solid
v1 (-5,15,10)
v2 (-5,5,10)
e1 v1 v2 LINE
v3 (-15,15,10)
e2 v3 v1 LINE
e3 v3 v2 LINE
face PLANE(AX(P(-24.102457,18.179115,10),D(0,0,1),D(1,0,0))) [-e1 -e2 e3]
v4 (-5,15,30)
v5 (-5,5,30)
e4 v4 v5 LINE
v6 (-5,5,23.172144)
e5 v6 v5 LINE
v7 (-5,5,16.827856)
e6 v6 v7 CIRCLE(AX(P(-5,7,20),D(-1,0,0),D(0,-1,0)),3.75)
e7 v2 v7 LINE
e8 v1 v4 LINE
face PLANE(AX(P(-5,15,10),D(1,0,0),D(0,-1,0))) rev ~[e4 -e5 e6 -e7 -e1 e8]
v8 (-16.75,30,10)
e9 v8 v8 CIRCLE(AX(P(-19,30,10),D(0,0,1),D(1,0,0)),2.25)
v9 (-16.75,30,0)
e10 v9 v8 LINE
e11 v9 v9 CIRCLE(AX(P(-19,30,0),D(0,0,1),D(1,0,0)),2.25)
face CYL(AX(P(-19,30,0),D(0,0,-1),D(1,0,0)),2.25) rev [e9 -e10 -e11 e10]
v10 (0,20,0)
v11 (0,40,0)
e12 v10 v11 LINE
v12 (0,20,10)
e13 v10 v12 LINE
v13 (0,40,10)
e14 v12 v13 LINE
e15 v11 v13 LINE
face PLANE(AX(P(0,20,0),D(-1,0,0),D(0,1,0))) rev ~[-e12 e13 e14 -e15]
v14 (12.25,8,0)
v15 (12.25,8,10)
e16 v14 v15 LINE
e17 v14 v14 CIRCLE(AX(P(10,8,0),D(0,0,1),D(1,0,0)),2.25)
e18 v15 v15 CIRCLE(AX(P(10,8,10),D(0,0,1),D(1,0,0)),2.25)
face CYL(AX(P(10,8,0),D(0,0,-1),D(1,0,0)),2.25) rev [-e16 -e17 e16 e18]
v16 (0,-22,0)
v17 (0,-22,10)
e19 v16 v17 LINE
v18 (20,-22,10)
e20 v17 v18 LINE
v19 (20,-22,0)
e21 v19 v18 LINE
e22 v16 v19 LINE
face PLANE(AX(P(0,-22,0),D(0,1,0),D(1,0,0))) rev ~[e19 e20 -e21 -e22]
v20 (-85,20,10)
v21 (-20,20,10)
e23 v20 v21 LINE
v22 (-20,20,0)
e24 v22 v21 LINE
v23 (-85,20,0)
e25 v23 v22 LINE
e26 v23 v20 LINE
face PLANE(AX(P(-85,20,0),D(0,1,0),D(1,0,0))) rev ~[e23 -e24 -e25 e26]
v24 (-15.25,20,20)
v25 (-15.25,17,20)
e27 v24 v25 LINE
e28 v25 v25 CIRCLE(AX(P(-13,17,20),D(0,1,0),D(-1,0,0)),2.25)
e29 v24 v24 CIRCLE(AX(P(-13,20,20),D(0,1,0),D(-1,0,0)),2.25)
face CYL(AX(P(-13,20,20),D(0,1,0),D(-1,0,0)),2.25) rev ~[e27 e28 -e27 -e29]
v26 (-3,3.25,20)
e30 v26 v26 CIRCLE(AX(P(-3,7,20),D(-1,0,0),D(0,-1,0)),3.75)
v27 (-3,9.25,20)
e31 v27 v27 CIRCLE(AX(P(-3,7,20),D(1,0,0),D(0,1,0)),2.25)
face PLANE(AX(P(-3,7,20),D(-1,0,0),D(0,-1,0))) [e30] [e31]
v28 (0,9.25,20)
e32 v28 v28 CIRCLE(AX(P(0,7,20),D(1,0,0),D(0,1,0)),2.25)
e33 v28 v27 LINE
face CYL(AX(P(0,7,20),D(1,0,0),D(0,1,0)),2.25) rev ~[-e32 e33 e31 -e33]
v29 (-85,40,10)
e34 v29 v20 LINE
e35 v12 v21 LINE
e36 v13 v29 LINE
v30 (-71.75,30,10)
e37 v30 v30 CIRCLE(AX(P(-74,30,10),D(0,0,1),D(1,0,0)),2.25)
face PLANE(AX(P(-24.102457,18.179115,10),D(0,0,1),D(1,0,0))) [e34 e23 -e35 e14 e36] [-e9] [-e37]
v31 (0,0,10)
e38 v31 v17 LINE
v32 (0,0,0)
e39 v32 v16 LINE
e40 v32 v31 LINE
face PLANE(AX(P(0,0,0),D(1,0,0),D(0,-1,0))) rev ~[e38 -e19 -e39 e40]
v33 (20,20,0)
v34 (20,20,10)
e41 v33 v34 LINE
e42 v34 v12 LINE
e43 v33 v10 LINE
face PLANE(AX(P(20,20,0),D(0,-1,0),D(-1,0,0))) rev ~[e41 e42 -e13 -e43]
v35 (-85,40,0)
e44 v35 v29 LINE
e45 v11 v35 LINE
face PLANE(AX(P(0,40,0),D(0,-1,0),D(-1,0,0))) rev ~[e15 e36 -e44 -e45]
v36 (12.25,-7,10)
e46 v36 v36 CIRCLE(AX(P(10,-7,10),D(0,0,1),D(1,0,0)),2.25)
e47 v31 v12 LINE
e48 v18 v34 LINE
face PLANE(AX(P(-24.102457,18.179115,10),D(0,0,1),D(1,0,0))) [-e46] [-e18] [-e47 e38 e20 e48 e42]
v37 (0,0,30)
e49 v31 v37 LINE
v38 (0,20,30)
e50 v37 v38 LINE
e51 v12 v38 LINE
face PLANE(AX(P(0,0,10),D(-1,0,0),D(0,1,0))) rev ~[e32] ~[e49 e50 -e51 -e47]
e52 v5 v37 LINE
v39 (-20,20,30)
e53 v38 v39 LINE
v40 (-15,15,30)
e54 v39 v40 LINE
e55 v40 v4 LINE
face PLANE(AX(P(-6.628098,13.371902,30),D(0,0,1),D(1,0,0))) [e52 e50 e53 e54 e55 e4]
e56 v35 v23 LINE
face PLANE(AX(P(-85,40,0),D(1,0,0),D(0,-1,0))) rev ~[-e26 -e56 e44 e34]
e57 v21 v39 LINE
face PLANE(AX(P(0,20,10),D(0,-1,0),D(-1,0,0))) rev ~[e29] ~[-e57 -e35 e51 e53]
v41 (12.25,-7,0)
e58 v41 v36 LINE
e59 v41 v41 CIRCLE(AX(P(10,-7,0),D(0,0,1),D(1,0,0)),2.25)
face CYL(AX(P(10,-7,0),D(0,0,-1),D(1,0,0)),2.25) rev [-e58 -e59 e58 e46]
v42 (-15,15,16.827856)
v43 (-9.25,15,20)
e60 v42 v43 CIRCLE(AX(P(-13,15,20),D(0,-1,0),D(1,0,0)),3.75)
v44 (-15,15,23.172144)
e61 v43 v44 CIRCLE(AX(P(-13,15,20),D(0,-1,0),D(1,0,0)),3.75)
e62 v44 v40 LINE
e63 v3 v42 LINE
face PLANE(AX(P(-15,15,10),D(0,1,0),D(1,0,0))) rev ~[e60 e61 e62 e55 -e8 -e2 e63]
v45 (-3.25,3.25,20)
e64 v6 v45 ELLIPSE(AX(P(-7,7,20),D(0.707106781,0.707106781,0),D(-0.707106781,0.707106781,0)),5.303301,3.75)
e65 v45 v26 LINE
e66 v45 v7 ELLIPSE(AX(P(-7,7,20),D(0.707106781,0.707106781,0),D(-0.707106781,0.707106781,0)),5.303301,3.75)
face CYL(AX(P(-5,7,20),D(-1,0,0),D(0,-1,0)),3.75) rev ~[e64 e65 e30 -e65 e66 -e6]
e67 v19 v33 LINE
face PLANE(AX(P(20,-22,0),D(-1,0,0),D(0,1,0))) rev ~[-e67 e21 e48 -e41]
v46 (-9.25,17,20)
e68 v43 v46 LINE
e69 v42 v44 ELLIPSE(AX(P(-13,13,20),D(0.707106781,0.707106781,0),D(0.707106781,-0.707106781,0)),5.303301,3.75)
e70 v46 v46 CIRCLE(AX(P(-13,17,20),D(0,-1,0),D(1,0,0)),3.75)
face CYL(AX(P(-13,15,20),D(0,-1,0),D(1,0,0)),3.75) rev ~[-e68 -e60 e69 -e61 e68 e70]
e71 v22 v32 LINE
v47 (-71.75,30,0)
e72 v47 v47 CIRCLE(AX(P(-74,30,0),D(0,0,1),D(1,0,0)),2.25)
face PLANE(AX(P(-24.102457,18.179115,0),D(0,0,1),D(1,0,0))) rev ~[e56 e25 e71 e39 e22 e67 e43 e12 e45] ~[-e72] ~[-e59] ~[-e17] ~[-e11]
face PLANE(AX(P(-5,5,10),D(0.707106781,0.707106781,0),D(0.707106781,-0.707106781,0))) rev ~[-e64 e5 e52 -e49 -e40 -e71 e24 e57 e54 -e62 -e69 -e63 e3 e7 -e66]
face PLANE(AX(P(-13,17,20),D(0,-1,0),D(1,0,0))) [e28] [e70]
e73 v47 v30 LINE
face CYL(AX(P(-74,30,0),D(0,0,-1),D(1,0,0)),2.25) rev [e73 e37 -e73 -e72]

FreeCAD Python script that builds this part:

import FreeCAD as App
import Part
import Sketcher


def add_polygon(sketch, points):
    """Adds a closed chain of lines whose ends are joined by coincident constraints."""
    first, n = sketch.GeometryCount, len(points)
    for a, b in zip(points, points[1:] + points[:1]):
        sketch.addGeometry(Part.LineSegment(App.Vector(*a, 0), App.Vector(*b, 0)), False)
    for i in range(n):
        sketch.addConstraint(Sketcher.Constraint("Coincident", first + i, 2, first + (i + 1) % n, 1))

doc = App.newDocument("Part")
body = doc.addObject("PartDesign::Body", "Body")

# Sketch on XY plane
sketch1 = body.newObject("Sketcher::SketchObject", "Sketch")
sketch1.AttachmentSupport = (doc.getObject("XY_Plane"), [""])
sketch1.MapMode = "FlatFace"
add_polygon(sketch1, [(-20, 20), (0, 0), (0, -22), (20, -22), (20, 20), (0, 20), (0, 40), (-85, 40), (-85, 20)])  # lines 0-8
sketch1.addGeometry(Part.Circle(App.Vector(10, -7, 0), App.Vector(0, 0, 1), 2.2), False)  # 9
sketch1.addGeometry(Part.Circle(App.Vector(10, 8, 0), App.Vector(0, 0, 1), 2.2), False)  # 10
sketch1.addGeometry(Part.Circle(App.Vector(-74, 30, 0), App.Vector(0, 0, 1), 2.2), False)  # 11
sketch1.addGeometry(Part.Circle(App.Vector(-19, 30, 0), App.Vector(0, 0, 1), 2.2), False)  # 12
sketch1.addConstraint([
    Sketcher.Constraint("Vertical", 1),
    Sketcher.Constraint("Horizontal", 2),
    Sketcher.Constraint("Vertical", 3),
    Sketcher.Constraint("Horizontal", 4),
    Sketcher.Constraint("Vertical", 5),
    Sketcher.Constraint("Horizontal", 6),
    Sketcher.Constraint("Vertical", 7),
    Sketcher.Constraint("Horizontal", 8),
    Sketcher.Constraint("Coincident", 0, 2, -1, 1),
    Sketcher.Constraint("Equal", 9, 10),
    Sketcher.Constraint("Equal", 10, 11),
    Sketcher.Constraint("Equal", 11, 12),
    Sketcher.Constraint("Symmetric", 3, 2, 8, 2, -2),
    Sketcher.Constraint("PointOnObject", 4, 2, -2),
    Sketcher.Constraint("Horizontal", 11, 3, 12, 3),
    Sketcher.Constraint("Vertical", 9, 3, 10, 3),
    Sketcher.Constraint("Equal", 4, 5),
    Sketcher.Constraint("Diameter", 9, 4.5),
    Sketcher.Constraint("DistanceX", 2, 1, 2, 2, 20.0),
    Sketcher.Constraint("DistanceX", 6, 2, 6, 1, 85.0),
    Sketcher.Constraint("DistanceY", 1, 2, 1, 1, 22.0),
    Sketcher.Constraint("DistanceY", 3, 1, 3, 2, 42.0),
    Sketcher.Constraint("DistanceX", -1, 1, 9, 3, 10.0),
    Sketcher.Constraint("DistanceY", 9, 3, -1, 1, 7.0),
    Sketcher.Constraint("DistanceY", -1, 1, 10, 3, 8.0),
    Sketcher.Constraint("DistanceX", 11, 3, -1, 1, 74.0),
    Sketcher.Constraint("DistanceY", -1, 1, 11, 3, 30.0),
    Sketcher.Constraint("DistanceX", 12, 3, -1, 1, 19.0),
])
pad1 = body.newObject("PartDesign::Pad", "Pad")
pad1.Profile = sketch1
pad1.Length = 10

# Sketch on XY plane
sketch2 = body.newObject("Sketcher::SketchObject", "Sketch001")
sketch2.AttachmentSupport = (doc.getObject("XY_Plane"), [""])
sketch2.MapMode = "FlatFace"
sketch2.AttachmentOffset = App.Placement(App.Vector(0, 0, 10), App.Rotation())
add_polygon(sketch2, [(0, 0), (0, 20), (-20, 20), (-15, 15), (-5, 15), (-5, 5)])  # lines 0-5
sketch2.addConstraint([
    Sketcher.Constraint("Vertical", 0),
    Sketcher.Constraint("Horizontal", 1),
    Sketcher.Constraint("Horizontal", 3),
    Sketcher.Constraint("Vertical", 4),
    Sketcher.Constraint("Coincident", 5, 2, -1, 1),
    Sketcher.Constraint("Parallel", 2, 5),
    Sketcher.Constraint("Equal", 1, 0),
    Sketcher.Constraint("Equal", 3, 4),
    Sketcher.Constraint("Equal", 2, 5),
    Sketcher.Constraint("DistanceX", 1, 2, 1, 1, 20.0),
    Sketcher.Constraint("DistanceX", 3, 1, 3, 2, 10.0),
])
pad2 = body.newObject("PartDesign::Pad", "Pad001")
pad2.Profile = sketch2
pad2.Length = 20

# Sketch on YZ plane
sketch3 = body.newObject("Sketcher::SketchObject", "Sketch002")
sketch3.AttachmentSupport = (doc.getObject("YZ_Plane"), [""])
sketch3.MapMode = "FlatFace"
sketch3.addGeometry(Part.Circle(App.Vector(7, 20, 0), App.Vector(0, 0, 1), 2.2), False)
sketch3.addConstraint([
    Sketcher.Constraint("Diameter", 0, 4.5),
    Sketcher.Constraint("DistanceX", -1, 1, 0, 3, 7.0),
    Sketcher.Constraint("DistanceY", -1, 1, 0, 3, 20.0),
])
pocket1 = body.newObject("PartDesign::Pocket", "Pocket")
pocket1.Profile = sketch3
pocket1.Length = 5

# Sketch on XZ plane
sketch4 = body.newObject("Sketcher::SketchObject", "Sketch003")
sketch4.AttachmentSupport = (doc.getObject("XZ_Plane"), [""])
sketch4.MapMode = "FlatFace"
sketch4.AttachmentOffset = App.Placement(App.Vector(0, 0, -20), App.Rotation())
sketch4.addGeometry(Part.Circle(App.Vector(-13, 20, 0), App.Vector(0, 0, 1), 2.2), False)
sketch4.addConstraint([
    Sketcher.Constraint("Diameter", 0, 4.5),
    Sketcher.Constraint("DistanceX", 0, 3, -1, 1, 13.0),
    Sketcher.Constraint("DistanceY", -1, 1, 0, 3, 20.0),
])
pocket2 = body.newObject("PartDesign::Pocket", "Pocket001")
pocket2.Profile = sketch4
pocket2.Length = 10
pocket2.Reversed = True

# Sketch on XZ plane
sketch5 = body.newObject("Sketcher::SketchObject", "Sketch004")
sketch5.AttachmentSupport = (doc.getObject("XZ_Plane"), [""])
sketch5.MapMode = "FlatFace"
sketch5.AttachmentOffset = App.Placement(App.Vector(0, 0, -15), App.Rotation())
sketch5.addGeometry(Part.Circle(App.Vector(-13, 20, 0), App.Vector(0, 0, 1), 3.8), False)
sketch5.addConstraint([
    Sketcher.Constraint("Diameter", 0, 7.5),
    Sketcher.Constraint("DistanceX", 0, 3, -1, 1, 13.0),
    Sketcher.Constraint("DistanceY", -1, 1, 0, 3, 20.0),
])
pocket3 = body.newObject("PartDesign::Pocket", "Pocket002")
pocket3.Profile = sketch5
pocket3.Length = 2

# Sketch on YZ plane
sketch6 = body.newObject("Sketcher::SketchObject", "Sketch005")
sketch6.AttachmentSupport = (doc.getObject("YZ_Plane"), [""])
sketch6.MapMode = "FlatFace"
sketch6.AttachmentOffset = App.Placement(App.Vector(0, 0, -5), App.Rotation())
sketch6.addGeometry(Part.Circle(App.Vector(7, 20, 0), App.Vector(0, 0, 1), 3.8), False)
sketch6.addConstraint([
    Sketcher.Constraint("Diameter", 0, 7.5),
    Sketcher.Constraint("DistanceX", -1, 1, 0, 3, 7.0),
    Sketcher.Constraint("DistanceY", -1, 1, 0, 3, 20.0),
])
pocket4 = body.newObject("PartDesign::Pocket", "Pocket003")
pocket4.Profile = sketch6
pocket4.Length = 2
pocket4.Reversed = True

doc.recompute()
